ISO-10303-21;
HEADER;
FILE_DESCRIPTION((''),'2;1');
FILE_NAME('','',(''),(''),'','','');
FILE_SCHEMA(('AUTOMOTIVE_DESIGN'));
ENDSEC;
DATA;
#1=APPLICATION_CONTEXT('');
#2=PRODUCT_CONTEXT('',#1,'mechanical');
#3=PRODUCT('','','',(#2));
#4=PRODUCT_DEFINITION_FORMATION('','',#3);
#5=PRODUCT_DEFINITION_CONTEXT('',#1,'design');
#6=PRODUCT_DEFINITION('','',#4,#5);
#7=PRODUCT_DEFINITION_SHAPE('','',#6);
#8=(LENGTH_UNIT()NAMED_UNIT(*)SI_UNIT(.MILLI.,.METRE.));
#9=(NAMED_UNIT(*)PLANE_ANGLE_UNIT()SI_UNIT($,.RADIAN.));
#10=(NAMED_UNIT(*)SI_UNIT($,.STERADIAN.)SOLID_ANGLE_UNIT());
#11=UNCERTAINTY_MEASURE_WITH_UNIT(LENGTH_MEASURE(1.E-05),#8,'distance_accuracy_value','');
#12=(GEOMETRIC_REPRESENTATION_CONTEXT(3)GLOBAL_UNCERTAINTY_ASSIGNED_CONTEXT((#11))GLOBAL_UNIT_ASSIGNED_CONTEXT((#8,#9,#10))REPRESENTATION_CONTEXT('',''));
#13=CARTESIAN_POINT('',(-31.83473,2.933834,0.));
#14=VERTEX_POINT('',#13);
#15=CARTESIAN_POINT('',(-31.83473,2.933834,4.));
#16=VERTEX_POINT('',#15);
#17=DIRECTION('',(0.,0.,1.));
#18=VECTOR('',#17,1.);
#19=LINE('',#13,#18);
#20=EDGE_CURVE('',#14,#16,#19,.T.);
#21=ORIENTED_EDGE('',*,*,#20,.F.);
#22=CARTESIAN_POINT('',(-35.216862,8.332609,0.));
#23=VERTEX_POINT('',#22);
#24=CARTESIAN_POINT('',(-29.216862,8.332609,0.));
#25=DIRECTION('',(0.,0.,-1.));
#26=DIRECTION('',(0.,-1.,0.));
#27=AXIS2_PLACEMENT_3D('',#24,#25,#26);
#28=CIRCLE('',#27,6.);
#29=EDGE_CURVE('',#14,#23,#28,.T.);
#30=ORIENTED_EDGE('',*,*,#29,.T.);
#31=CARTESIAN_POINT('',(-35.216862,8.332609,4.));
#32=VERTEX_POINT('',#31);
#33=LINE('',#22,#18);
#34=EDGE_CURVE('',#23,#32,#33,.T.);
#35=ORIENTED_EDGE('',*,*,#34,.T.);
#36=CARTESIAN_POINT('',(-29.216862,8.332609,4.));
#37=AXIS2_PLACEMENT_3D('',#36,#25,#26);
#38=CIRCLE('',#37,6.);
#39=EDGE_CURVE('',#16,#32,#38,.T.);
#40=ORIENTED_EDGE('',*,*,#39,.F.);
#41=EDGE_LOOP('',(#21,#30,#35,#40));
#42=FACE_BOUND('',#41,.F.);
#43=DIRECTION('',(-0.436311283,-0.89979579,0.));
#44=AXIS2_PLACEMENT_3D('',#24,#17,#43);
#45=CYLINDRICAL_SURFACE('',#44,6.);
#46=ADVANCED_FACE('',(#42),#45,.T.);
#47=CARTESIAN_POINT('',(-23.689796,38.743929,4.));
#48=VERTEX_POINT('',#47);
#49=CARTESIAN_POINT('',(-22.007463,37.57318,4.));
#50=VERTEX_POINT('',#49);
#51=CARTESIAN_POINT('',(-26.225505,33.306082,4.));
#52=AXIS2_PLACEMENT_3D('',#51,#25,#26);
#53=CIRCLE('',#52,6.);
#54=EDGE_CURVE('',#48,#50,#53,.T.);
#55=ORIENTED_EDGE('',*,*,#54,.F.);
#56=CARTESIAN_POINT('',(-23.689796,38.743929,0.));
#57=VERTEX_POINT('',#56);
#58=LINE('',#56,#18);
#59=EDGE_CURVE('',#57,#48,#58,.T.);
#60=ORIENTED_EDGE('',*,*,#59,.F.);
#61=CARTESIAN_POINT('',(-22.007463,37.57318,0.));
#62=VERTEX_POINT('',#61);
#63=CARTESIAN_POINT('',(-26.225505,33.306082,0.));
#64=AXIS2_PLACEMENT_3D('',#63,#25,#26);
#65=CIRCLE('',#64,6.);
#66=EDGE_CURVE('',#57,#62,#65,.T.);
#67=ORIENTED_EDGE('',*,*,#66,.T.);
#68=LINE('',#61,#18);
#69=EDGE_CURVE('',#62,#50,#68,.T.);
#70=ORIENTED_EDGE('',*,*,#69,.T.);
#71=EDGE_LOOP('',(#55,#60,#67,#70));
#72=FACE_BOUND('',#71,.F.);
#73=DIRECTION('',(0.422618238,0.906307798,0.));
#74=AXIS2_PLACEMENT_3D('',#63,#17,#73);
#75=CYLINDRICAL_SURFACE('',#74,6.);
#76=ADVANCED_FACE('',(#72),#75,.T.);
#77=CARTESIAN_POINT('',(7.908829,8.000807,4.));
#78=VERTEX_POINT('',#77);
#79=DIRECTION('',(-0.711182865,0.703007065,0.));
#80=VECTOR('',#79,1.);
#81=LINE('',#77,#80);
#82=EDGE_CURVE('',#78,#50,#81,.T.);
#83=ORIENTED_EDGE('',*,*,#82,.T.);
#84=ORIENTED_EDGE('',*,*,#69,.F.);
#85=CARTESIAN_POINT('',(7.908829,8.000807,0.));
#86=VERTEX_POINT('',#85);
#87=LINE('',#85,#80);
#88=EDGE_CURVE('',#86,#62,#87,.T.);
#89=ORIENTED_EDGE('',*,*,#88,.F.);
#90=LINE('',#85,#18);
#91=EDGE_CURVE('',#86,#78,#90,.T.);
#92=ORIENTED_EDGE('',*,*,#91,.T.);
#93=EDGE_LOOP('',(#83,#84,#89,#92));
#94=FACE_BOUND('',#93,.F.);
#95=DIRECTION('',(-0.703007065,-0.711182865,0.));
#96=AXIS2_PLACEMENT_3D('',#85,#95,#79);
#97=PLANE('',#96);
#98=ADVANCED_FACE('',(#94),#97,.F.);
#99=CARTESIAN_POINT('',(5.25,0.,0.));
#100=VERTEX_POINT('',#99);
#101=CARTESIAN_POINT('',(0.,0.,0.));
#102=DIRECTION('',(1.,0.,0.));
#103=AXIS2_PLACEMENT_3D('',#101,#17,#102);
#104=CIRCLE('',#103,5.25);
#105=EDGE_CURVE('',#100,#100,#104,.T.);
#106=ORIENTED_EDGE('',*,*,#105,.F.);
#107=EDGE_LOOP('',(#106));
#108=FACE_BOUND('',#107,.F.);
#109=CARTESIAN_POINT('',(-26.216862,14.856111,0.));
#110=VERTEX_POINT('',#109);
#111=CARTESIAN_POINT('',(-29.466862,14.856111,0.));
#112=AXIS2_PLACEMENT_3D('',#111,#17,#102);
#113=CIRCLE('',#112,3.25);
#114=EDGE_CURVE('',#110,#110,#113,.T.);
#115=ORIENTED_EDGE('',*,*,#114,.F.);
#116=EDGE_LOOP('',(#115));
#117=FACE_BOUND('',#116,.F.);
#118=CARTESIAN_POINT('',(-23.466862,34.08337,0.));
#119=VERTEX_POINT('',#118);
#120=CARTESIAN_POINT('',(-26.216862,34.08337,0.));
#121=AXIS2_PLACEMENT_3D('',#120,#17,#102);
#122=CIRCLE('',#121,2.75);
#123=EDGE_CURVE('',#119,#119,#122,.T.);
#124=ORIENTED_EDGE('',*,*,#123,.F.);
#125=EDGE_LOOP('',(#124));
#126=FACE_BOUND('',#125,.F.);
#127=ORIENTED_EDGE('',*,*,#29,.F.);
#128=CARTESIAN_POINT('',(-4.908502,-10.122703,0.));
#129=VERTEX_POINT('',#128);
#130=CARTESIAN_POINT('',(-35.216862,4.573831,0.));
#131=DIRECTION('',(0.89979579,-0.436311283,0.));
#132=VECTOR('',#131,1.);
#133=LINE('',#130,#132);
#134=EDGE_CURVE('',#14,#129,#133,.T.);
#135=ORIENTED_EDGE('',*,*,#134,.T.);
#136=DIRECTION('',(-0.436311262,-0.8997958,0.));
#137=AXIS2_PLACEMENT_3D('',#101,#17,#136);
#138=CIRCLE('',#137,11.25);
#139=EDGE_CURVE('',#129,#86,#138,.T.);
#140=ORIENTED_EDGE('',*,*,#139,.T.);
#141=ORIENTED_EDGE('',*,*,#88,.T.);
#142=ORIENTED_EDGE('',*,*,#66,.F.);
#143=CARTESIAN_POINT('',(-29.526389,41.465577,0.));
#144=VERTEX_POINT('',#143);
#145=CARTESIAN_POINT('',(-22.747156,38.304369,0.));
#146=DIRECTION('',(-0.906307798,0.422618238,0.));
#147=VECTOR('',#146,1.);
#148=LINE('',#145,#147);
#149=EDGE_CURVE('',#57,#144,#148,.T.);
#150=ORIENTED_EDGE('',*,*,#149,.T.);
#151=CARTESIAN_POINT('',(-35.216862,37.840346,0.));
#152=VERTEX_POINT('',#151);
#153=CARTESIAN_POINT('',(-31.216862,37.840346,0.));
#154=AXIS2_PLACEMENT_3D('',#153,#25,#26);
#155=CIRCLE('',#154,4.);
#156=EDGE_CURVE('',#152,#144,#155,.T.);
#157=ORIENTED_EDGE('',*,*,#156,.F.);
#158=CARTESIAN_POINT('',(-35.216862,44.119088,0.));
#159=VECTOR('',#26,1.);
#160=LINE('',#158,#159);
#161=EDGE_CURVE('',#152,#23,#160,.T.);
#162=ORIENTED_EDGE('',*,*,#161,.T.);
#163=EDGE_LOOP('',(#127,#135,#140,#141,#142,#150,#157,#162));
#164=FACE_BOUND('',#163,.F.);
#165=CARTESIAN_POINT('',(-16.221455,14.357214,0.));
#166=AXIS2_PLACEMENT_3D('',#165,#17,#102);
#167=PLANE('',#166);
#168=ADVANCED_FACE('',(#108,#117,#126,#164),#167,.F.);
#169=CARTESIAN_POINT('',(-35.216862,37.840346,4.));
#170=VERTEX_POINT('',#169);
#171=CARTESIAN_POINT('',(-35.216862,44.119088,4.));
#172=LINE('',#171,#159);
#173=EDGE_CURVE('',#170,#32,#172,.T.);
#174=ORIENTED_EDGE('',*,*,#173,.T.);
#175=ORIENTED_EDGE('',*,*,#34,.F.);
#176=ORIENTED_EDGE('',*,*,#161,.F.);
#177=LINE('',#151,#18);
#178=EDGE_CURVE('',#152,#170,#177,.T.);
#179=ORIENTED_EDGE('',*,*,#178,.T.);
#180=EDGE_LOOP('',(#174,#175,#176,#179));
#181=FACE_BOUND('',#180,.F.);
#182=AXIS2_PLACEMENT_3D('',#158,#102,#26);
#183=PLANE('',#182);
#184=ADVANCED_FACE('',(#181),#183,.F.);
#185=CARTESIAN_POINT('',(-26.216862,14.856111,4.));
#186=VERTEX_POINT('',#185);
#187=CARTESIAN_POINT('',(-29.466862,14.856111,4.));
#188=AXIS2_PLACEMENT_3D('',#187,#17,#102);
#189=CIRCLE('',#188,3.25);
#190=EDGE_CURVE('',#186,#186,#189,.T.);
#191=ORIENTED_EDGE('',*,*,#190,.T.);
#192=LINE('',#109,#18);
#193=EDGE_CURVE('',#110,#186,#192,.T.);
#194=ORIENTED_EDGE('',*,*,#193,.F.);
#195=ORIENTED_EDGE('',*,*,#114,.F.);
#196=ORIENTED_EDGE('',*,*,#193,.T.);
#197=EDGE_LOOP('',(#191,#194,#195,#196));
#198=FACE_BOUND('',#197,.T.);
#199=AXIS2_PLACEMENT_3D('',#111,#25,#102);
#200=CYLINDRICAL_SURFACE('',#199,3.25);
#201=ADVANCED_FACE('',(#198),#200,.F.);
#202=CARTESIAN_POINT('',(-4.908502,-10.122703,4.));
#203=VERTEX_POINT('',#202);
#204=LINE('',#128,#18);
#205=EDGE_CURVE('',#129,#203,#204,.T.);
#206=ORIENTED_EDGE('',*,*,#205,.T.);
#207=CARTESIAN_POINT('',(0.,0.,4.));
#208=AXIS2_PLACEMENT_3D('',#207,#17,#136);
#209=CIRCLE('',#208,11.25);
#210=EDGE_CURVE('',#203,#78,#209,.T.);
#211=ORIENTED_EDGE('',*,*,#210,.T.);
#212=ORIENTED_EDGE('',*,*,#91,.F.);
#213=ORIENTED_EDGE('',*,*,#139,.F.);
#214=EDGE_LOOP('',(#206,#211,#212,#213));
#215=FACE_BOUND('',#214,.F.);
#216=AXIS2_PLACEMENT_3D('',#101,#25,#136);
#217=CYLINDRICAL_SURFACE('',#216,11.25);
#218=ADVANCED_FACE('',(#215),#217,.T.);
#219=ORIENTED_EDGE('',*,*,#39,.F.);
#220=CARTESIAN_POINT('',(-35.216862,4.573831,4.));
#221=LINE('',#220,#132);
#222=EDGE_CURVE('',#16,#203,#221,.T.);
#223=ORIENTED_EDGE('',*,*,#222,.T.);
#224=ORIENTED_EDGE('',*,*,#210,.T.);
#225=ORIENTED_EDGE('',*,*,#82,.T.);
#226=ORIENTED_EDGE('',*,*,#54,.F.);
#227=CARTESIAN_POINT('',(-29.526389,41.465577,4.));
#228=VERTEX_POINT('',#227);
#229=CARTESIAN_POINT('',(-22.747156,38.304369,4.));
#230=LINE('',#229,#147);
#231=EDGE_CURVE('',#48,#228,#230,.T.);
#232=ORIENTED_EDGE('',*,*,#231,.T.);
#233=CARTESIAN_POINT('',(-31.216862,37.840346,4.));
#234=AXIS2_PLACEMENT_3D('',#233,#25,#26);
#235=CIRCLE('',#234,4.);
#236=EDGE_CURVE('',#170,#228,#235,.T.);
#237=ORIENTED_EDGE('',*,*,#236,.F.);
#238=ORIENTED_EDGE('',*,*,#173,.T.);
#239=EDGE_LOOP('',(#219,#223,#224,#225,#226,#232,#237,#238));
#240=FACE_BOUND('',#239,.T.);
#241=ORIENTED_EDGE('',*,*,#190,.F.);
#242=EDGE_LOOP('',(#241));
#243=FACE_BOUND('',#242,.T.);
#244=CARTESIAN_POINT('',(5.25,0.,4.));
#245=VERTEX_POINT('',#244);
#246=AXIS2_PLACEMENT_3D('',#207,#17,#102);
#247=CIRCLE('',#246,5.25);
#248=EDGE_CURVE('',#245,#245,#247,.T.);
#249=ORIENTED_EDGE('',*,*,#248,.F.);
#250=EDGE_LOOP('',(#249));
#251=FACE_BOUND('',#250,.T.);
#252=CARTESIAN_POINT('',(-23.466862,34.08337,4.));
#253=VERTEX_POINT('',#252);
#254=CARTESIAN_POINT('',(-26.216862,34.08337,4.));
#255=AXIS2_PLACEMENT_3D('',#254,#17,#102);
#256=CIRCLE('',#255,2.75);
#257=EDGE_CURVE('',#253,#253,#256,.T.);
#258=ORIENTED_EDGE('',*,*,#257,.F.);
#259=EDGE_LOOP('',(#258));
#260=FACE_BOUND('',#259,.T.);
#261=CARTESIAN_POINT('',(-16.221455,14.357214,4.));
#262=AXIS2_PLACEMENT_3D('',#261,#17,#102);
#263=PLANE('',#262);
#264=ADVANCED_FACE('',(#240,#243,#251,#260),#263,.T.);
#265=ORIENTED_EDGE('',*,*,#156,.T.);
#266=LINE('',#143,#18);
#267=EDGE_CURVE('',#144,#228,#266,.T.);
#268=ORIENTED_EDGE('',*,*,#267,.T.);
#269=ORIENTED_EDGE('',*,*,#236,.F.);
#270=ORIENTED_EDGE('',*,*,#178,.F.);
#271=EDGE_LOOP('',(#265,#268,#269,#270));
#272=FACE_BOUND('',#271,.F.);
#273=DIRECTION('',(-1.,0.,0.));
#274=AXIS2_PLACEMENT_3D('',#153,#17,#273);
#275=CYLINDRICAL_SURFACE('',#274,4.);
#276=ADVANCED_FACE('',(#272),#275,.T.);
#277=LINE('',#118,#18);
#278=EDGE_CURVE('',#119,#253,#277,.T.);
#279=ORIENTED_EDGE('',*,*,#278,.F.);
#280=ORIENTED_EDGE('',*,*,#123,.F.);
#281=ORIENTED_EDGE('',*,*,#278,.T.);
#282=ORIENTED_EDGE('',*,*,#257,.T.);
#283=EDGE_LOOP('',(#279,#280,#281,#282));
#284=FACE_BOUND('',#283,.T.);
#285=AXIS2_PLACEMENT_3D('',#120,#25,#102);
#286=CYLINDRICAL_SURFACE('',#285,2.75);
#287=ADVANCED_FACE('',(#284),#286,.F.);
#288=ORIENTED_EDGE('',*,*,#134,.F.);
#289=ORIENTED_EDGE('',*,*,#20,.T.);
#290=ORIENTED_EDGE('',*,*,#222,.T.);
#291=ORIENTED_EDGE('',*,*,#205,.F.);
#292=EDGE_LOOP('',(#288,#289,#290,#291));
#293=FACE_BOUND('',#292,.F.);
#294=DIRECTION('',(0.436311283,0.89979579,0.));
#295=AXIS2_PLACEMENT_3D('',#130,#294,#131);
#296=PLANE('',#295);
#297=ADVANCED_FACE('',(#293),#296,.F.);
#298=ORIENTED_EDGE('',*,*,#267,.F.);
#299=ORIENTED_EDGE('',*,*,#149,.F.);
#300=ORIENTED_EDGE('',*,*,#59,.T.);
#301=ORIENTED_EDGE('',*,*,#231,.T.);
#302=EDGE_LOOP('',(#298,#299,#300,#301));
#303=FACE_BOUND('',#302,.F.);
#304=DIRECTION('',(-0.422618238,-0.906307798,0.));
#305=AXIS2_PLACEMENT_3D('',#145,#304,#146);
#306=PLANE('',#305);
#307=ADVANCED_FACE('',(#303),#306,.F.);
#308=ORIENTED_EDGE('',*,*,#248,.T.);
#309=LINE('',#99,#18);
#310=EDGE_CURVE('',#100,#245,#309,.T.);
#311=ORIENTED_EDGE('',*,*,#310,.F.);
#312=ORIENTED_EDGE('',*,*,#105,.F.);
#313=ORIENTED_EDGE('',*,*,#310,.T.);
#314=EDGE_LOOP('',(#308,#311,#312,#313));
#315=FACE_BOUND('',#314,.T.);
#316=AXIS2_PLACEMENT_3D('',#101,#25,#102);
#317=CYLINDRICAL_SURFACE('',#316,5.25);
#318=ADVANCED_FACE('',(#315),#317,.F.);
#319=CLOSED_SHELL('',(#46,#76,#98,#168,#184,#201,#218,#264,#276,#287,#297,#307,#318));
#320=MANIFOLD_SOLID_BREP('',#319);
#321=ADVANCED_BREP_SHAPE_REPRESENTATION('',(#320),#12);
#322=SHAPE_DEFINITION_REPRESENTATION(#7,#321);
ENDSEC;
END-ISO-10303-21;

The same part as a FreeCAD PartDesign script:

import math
import FreeCAD as App
import Part
import Sketcher

V = App.Vector
Q = App.Units.Quantity


def edges_at(feature, points):
    """Names of the edges that pass closest to the given points."""
    edges = feature.Shape.Edges
    near = lambda p: min(range(len(edges)), key=lambda i: edges[i].distToShape(Part.Vertex(*p))[0])
    return sorted({f"Edge{near(p) + 1}" for p in points})

doc = App.newDocument("Part")
body = doc.addObject("PartDesign::Body", "Body")

# Sketch on XY plane
sketch1 = body.newObject("Sketcher::SketchObject", "Sketch")
sketch1.AttachmentSupport = (doc.getObject("XY_Plane"), [""])
sketch1.MapMode = "FlatFace"
sketch1.addGeometry([
    Part.LineSegment(V(-35.2, 4.6, 0), V(-4.9, -10.1, 0)),  # 0
    Part.ArcOfCircle(Part.Circle(V(0, 0, 0), V(0, 0, 1), 11.2), math.radians(-116), math.radians(45)),  # 1
    Part.LineSegment(V(7.9, 8, 0), V(-22.7, 38.3, 0)),  # 2
    Part.LineSegment(V(-22.7, 38.3, 0), V(-35.2, 44.1, 0)),  # 3
    Part.LineSegment(V(-35.2, 44.1, 0), V(-35.2, 4.6, 0)),  # 4
    Part.Circle(V(-29.5, 14.9, 0), V(0, 0, 1), 3.2),  # 5
    Part.Circle(V(0, 0, 0), V(0, 0, 1), 5.2),  # 6
    Part.Circle(V(-26.2, 34.1, 0), V(0, 0, 1), 2.8),  # 7
], False)
sketch1.addConstraint([
    Sketcher.Constraint("Tangent", 0, 2, 1, 1),
    Sketcher.Constraint("Tangent", 1, 2, 2, 1),
    Sketcher.Constraint("Coincident", 2, 2, 3, 1),
    Sketcher.Constraint("Coincident", 3, 2, 4, 1),
    Sketcher.Constraint("Coincident", 4, 2, 0, 1),
    Sketcher.Constraint("Vertical", 4),
    Sketcher.Constraint("Coincident", 1, 3, -1, 1),
    Sketcher.Constraint("Coincident", 6, 3, -1, 1),
    Sketcher.Constraint("Diameter", 5, 6.5),
    Sketcher.Constraint("Diameter", 6, 10.5),
    Sketcher.Constraint("Diameter", 7, 5.5),
    Sketcher.Constraint("Angle", 3, Q("155.000002 deg")),
    Sketcher.Constraint("Radius", 1, 11.25),
    Sketcher.Constraint("DistanceX", 3, 2, 7, 3, 9.0),
    Sketcher.Constraint("DistanceX", 5, 3, 7, 3, 3.25),
    Sketcher.Constraint("DistanceY", 7, 3, 2, 2, 4.220999),
    Sketcher.Constraint("Distance", 0, 33.683598),
    Sketcher.Constraint("Distance", 3, 13.758798),
    Sketcher.Constraint("DistanceX", 0, 2, 1, 3, 4.908502),
    Sketcher.Constraint("Distance", 2, 43.105629),
    Sketcher.Constraint("DistanceY", -1, 1, 5, 3, 14.856111),
])
pad1 = body.newObject("PartDesign::Pad", "Pad")
pad1.Profile = sketch1
pad1.Length = 4
doc.recompute()

fillet = body.newObject("PartDesign::Fillet", "Fillet")
fillet.Base = (pad1, edges_at(pad1, [(-22.747, 38.304, 2), (-35.217, 4.574, 2)]))
fillet.Radius = 6
doc.recompute()

fillet2 = body.newObject("PartDesign::Fillet", "Fillet001")
fillet2.Base = (fillet, edges_at(fillet, [(-35.217, 44.119, 2)]))
fillet2.Radius = 4

doc.recompute()
